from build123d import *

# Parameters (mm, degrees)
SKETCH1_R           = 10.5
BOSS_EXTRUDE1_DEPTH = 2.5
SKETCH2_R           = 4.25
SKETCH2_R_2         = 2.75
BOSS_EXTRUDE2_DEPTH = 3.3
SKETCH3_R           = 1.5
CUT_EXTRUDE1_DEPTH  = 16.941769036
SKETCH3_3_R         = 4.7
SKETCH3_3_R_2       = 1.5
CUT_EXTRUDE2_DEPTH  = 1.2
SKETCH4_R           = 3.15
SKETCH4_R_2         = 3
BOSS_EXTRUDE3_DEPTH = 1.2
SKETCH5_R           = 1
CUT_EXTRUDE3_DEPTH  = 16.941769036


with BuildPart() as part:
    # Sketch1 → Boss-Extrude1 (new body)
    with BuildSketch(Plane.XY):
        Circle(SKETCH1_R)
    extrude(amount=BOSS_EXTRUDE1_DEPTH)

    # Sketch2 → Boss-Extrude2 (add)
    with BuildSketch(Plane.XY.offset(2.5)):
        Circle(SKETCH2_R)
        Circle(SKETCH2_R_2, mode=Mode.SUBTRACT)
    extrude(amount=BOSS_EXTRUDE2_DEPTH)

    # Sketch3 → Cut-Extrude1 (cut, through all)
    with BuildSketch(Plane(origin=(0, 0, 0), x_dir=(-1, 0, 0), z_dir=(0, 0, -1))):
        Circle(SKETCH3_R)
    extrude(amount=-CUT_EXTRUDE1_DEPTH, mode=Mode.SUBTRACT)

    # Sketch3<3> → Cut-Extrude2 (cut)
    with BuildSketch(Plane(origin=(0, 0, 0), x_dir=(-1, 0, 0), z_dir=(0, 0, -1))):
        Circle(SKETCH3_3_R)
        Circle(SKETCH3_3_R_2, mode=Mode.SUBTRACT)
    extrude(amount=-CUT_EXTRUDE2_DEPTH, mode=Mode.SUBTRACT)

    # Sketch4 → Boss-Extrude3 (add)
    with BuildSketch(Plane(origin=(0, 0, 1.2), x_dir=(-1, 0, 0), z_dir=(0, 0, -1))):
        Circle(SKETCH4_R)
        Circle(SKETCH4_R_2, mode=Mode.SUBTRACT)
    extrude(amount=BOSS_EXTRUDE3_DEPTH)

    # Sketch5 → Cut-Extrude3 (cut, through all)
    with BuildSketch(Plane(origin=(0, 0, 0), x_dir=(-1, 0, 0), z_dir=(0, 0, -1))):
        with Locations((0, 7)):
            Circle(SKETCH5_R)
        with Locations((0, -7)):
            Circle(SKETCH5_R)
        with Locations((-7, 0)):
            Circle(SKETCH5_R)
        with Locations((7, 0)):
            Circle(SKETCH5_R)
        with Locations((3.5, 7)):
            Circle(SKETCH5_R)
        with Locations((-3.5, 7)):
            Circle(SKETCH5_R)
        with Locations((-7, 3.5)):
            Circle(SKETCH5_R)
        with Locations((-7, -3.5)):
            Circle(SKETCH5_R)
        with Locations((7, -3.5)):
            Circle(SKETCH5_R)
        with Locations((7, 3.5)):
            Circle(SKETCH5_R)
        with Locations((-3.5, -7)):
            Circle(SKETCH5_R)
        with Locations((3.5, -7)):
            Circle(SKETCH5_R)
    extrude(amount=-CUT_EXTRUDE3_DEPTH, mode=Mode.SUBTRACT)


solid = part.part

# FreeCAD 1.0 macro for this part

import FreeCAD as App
import Part
import Sketcher

doc = App.newDocument("Part")
params = doc.addObject("Spreadsheet::Sheet", "Params")
for row, (alias, value) in enumerate([
    ("sketch1_diameter", "21 mm"),
    ("pad1_length", "2.5 mm"),
    ("sketch2_diameter", "8.5 mm"),
    ("sketch2_diameter2", "5.5 mm"),
    ("pad2_length", "3.3 mm"),
    ("sketch3_diameter", "3 mm"),
    ("sketch4_diameter", "3 mm"),
    ("sketch4_diameter2", "9.4 mm"),
    ("pocket2_length", "1.2 mm"),
    ("sketch5_diameter", "6 mm"),
    ("sketch5_diameter2", "6.3 mm"),
    ("pad3_length", "1.2 mm"),
    ("sketch6_diameter", "2 mm"),
], start=1):
    params.set(f"A{row}", alias)
    params.set(f"B{row}", "=" + value)
    params.setAlias(f"B{row}", alias)

body = doc.addObject("PartDesign::Body", "Body")

sketch1 = body.newObject("Sketcher::SketchObject", "Sketch")
sketch1.AttachmentSupport = (doc.getObject("XY_Plane"), [""])
sketch1.MapMode = "FlatFace"
sketch1.addGeometry(Part.Circle(App.Vector(0, 0, 0), App.Vector(0, 0, 1), 10), False)
sketch1.addConstraint([
    Sketcher.Constraint("Coincident", 0, 3, -1, 1),
    Sketcher.Constraint("Diameter", 0, 21.0),
])
sketch1.setExpression("Constraints[1]", "Params.sketch1_diameter")
pad1 = body.newObject("PartDesign::Pad", "Pad")
pad1.Profile = sketch1
pad1.setExpression("Length", "Params.pad1_length")

sketch2 = body.newObject("Sketcher::SketchObject", "Sketch001")
sketch2.AttachmentSupport = (doc.getObject("XY_Plane"), [""])
sketch2.MapMode = "FlatFace"
sketch2.AttachmentOffset = App.Placement(App.Vector(0, 0, 2.5), App.Rotation())
sketch2.addGeometry([
    Part.Circle(App.Vector(0, 0, 0), App.Vector(0, 0, 1), 4.2),
    Part.Circle(App.Vector(0, 0, 0), App.Vector(0, 0, 1), 2.8),
], False)
sketch2.addConstraint([
    Sketcher.Constraint("Coincident", 0, 3, -1, 1),
    Sketcher.Constraint("Coincident", 1, 3, -1, 1),
    Sketcher.Constraint("Diameter", 0, 8.5),
    Sketcher.Constraint("Diameter", 1, 5.5),
])
sketch2.setExpression("Constraints[2]", "Params.sketch2_diameter")
sketch2.setExpression("Constraints[3]", "Params.sketch2_diameter2")
pad2 = body.newObject("PartDesign::Pad", "Pad001")
pad2.Profile = sketch2
pad2.setExpression("Length", "Params.pad2_length")

sketch3 = body.newObject("Sketcher::SketchObject", "Sketch002")
sketch3.AttachmentSupport = (doc.getObject("XY_Plane"), [""])
sketch3.MapMode = "FlatFace"
sketch3.addGeometry(Part.Circle(App.Vector(0, 0, 0), App.Vector(0, 0, 1), 1.5), False)
sketch3.addConstraint([
    Sketcher.Constraint("Coincident", 0, 3, -1, 1),
    Sketcher.Constraint("Diameter", 0, 3.0),
])
sketch3.setExpression("Constraints[1]", "Params.sketch3_diameter")
pocket1 = body.newObject("PartDesign::Pocket", "Pocket")
pocket1.Profile = sketch3
pocket1.Type = "ThroughAll"
pocket1.Reversed = True

sketch4 = body.newObject("Sketcher::SketchObject", "Sketch003")
sketch4.AttachmentSupport = (doc.getObject("XY_Plane"), [""])
sketch4.MapMode = "FlatFace"
sketch4.addGeometry([
    Part.Circle(App.Vector(0, 0, 0), App.Vector(0, 0, 1), 4.7),
    Part.Circle(App.Vector(0, 0, 0), App.Vector(0, 0, 1), 1.5),
], False)
sketch4.addConstraint([
    Sketcher.Constraint("Coincident", 0, 3, -1, 1),
    Sketcher.Constraint("Coincident", 1, 3, -1, 1),
    Sketcher.Constraint("Diameter", 1, 3.0),
    Sketcher.Constraint("Diameter", 0, 9.4),
])
sketch4.setExpression("Constraints[2]", "Params.sketch4_diameter")
sketch4.setExpression("Constraints[3]", "Params.sketch4_diameter2")
pocket2 = body.newObject("PartDesign::Pocket", "Pocket001")
pocket2.Profile = sketch4
pocket2.setExpression("Length", "Params.pocket2_length")
pocket2.Reversed = True

sketch5 = body.newObject("Sketcher::SketchObject", "Sketch004")
sketch5.AttachmentSupport = (doc.getObject("XY_Plane"), [""])
sketch5.MapMode = "FlatFace"
sketch5.AttachmentOffset = App.Placement(App.Vector(0, 0, 1.2), App.Rotation())
sketch5.addGeometry([
    Part.Circle(App.Vector(0, 0, 0), App.Vector(0, 0, 1), 3.1),
    Part.Circle(App.Vector(0, 0, 0), App.Vector(0, 0, 1), 3),
], False)
sketch5.addConstraint([
    Sketcher.Constraint("Coincident", 0, 3, -1, 1),
    Sketcher.Constraint("Coincident", 1, 3, -1, 1),
    Sketcher.Constraint("Diameter", 1, 6.0),
    Sketcher.Constraint("Diameter", 0, 6.3),
])
sketch5.setExpression("Constraints[2]", "Params.sketch5_diameter")
sketch5.setExpression("Constraints[3]", "Params.sketch5_diameter2")
pad3 = body.newObject("PartDesign::Pad", "Pad002")
pad3.Profile = sketch5
pad3.setExpression("Length", "Params.pad3_length")
pad3.Reversed = True

sketch6 = body.newObject("Sketcher::SketchObject", "Sketch005")
sketch6.AttachmentSupport = (doc.getObject("XY_Plane"), [""])
sketch6.MapMode = "FlatFace"
sketch6.addGeometry([
    Part.Circle(App.Vector(0, 7, 0), App.Vector(0, 0, 1), 1),
    Part.Circle(App.Vector(0, -7, 0), App.Vector(0, 0, 1), 1),
    Part.Circle(App.Vector(7, 0, 0), App.Vector(0, 0, 1), 1),
    Part.Circle(App.Vector(-7, 0, 0), App.Vector(0, 0, 1), 1),
    Part.Circle(App.Vector(-3.5, 7, 0), App.Vector(0, 0, 1), 1),
    Part.Circle(App.Vector(3.5, 7, 0), App.Vector(0, 0, 1), 1),
    Part.Circle(App.Vector(7, 3.5, 0), App.Vector(0, 0, 1), 1),
    Part.Circle(App.Vector(7, -3.5, 0), App.Vector(0, 0, 1), 1),
    Part.Circle(App.Vector(-7, -3.5, 0), App.Vector(0, 0, 1), 1),
    Part.Circle(App.Vector(-7, 3.5, 0), App.Vector(0, 0, 1), 1),
    Part.Circle(App.Vector(3.5, -7, 0), App.Vector(0, 0, 1), 1),
    Part.Circle(App.Vector(-3.5, -7, 0), App.Vector(0, 0, 1), 1),
], False)
sketch6.addConstraint([
    Sketcher.Constraint("Equal", 0, 1),
    Sketcher.Constraint("Equal", 1, 2),
    Sketcher.Constraint("Equal", 2, 3),
    Sketcher.Constraint("Equal", 3, 4),
    Sketcher.Constraint("Equal", 4, 5),
    Sketcher.Constraint("Equal", 5, 6),
    Sketcher.Constraint("Equal", 6, 7),
    Sketcher.Constraint("Equal", 7, 8),
    Sketcher.Constraint("Equal", 8, 9),
    Sketcher.Constraint("Equal", 9, 10),
    Sketcher.Constraint("Equal", 10, 11),
    Sketcher.Constraint("Symmetric", 0, 3, 1, 3, -1, 1),
    Sketcher.Constraint("Symmetric", 2, 3, 3, 3, -1, 1),
    Sketcher.Constraint("Symmetric", 6, 3, 8, 3, -1, 1),
    Sketcher.Constraint("Symmetric", 7, 3, 9, 3, -1, 1),
    Sketcher.Constraint("Symmetric", 4, 3, 10, 3, -1, 1),
    Sketcher.Constraint("Symmetric", 5, 3, 11, 3, -1, 1),
    Sketcher.Constraint("Symmetric", 4, 3, 5, 3, -2),
    Sketcher.Constraint("Symmetric", 7, 3, 8, 3, -2),
    Sketcher.Constraint("PointOnObject", 0, 3, -2),
    Sketcher.Constraint("PointOnObject", 2, 3, -1),
    Sketcher.Constraint("Horizontal", 0, 3, 4, 3),
    Sketcher.Constraint("Vertical", 2, 3, 6, 3),
    Sketcher.Constraint("Diameter", 0, 2.0),
    Sketcher.Constraint("DistanceY", -1, 1, 0, 3, 7.0),
    Sketcher.Constraint("DistanceX", -1, 1, 2, 3, 7.0),
    Sketcher.Constraint("DistanceX", 4, 3, 5, 3, 7.0),
    Sketcher.Constraint("DistanceY", 7, 3, 6, 3, 7.0),
])
sketch6.setExpression("Constraints[23]", "Params.sketch6_diameter")
pocket3 = body.newObject("PartDesign::Pocket", "Pocket002")
pocket3.Profile = sketch6
pocket3.Type = "ThroughAll"
pocket3.Reversed = True

doc.recompute()
